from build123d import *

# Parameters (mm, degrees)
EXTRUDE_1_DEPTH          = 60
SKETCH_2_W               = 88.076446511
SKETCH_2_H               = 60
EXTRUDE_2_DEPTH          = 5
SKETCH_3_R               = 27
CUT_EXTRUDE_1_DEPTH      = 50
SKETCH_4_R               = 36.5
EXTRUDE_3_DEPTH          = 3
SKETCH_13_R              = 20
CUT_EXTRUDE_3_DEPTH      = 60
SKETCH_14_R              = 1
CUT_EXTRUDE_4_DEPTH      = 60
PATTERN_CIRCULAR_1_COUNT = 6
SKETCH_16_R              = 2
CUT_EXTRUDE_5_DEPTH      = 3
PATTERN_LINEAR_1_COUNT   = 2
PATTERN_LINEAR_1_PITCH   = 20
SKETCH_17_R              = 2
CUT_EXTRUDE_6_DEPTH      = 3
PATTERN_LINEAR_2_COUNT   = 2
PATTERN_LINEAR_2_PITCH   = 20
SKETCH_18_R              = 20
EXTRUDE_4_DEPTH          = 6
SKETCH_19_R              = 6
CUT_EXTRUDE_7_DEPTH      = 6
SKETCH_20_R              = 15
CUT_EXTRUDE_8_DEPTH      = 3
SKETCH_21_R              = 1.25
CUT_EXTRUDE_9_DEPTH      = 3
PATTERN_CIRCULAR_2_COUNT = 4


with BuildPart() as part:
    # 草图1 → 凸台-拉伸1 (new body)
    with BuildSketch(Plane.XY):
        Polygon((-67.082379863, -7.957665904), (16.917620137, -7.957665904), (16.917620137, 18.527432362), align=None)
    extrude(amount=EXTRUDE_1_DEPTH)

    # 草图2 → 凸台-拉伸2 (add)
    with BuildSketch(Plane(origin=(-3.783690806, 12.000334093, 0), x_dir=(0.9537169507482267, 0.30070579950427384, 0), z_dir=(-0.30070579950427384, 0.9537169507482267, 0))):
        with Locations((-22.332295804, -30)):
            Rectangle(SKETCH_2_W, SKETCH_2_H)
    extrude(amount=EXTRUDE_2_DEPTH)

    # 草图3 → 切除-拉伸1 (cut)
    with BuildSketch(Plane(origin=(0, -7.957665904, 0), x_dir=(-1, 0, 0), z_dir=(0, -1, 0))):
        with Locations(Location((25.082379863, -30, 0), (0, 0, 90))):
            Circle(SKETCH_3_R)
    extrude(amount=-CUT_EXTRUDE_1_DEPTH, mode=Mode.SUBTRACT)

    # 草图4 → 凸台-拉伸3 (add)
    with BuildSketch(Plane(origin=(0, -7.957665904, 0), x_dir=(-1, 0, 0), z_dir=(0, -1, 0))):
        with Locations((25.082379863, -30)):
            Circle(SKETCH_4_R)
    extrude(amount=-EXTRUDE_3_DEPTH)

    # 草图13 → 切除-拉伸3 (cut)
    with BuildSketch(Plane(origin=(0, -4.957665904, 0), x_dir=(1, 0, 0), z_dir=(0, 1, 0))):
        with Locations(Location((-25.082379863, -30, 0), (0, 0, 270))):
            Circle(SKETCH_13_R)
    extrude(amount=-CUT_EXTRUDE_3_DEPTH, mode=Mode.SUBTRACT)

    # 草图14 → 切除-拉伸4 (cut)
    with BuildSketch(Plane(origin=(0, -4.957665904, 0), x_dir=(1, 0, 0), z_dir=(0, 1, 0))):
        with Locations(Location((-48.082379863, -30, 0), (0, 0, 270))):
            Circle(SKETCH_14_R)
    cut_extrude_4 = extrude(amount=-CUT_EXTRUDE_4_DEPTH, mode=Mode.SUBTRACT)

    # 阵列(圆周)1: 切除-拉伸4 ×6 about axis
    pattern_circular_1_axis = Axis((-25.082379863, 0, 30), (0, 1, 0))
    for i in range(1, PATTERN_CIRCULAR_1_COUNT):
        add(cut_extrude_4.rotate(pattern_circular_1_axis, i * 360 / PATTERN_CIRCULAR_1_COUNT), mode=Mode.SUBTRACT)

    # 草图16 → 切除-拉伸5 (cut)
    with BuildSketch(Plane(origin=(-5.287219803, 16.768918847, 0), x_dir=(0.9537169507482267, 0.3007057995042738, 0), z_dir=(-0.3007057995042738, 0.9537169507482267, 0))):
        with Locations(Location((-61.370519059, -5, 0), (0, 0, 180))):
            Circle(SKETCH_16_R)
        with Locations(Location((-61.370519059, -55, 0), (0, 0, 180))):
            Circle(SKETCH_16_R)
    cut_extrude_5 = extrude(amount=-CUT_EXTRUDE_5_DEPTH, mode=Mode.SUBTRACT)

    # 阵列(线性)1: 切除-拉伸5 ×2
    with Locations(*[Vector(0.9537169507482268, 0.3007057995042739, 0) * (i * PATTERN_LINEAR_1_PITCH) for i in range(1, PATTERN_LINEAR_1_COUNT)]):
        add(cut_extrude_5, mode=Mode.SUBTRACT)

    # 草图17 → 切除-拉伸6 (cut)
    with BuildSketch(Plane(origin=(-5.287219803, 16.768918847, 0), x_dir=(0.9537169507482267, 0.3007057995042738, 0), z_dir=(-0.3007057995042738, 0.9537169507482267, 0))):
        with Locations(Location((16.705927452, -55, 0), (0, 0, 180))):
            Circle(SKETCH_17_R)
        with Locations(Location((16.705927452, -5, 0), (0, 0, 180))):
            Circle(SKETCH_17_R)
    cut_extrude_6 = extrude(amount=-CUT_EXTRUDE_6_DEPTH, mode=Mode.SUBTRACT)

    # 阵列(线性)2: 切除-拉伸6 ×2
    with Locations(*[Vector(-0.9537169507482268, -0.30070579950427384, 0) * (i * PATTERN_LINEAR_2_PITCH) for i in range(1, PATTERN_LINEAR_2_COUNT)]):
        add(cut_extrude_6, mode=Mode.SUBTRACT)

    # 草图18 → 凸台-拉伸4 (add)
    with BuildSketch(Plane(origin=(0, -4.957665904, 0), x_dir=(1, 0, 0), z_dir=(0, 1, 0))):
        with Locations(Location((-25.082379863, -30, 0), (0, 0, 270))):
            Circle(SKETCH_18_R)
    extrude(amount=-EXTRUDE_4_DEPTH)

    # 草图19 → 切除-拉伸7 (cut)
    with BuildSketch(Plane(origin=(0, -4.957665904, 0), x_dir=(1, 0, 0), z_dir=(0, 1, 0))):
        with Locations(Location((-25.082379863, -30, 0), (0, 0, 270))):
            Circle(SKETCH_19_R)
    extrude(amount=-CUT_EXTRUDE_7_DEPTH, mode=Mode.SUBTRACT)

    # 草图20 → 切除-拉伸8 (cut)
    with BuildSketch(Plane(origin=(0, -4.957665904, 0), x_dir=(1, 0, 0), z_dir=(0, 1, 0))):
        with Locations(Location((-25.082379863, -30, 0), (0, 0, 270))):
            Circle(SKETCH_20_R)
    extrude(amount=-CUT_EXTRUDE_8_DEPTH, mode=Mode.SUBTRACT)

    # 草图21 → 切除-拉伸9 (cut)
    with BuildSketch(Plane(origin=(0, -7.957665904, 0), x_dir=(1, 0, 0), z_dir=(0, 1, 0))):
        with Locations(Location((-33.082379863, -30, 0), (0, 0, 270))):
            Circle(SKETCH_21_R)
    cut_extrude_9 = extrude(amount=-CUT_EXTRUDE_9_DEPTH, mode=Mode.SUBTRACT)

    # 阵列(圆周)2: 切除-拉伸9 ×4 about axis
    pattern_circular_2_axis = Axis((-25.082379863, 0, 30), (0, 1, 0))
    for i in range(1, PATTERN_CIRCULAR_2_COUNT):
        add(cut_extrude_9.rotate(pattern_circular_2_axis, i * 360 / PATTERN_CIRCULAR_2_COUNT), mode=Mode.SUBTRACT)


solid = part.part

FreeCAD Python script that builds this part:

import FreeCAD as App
import Part
import Sketcher
from FreeCAD import Vector
Q = App.Units.Quantity

doc = App.newDocument("Part")
params = doc.addObject("Spreadsheet::Sheet", "Params")
for row, (alias, value) in enumerate([
    ("sketch1_width", "84 mm"),
    ("pad1_length", "60 mm"),
    ("sketch2_height", "60 mm"),
    ("pad2_length", "5 mm"),
    ("sketch3_diameter", "54 mm"),
    ("pocket1_length", "50 mm"),
    ("sketch4_diameter", "73 mm"),
    ("pad3_length", "3 mm"),
    ("sketch5_diameter", "40 mm"),
    ("pocket2_length", "60 mm"),
    ("sketch6_diameter", "2 mm"),
    ("pocket3_length", "60 mm"),
    ("sketch7_diameter", "4 mm"),
    ("pocket4_length", "3 mm"),
    ("linearpattern_pitch", "20 mm"),
    ("sketch8_diameter", "4 mm"),
    ("pocket5_length", "3 mm"),
    ("linearpattern2_pitch", "20 mm"),
    ("sketch9_diameter", "40 mm"),
    ("pad4_length", "6 mm"),
    ("sketch10_diameter", "12 mm"),
    ("pocket6_length", "6 mm"),
    ("sketch11_diameter", "30 mm"),
    ("pocket7_length", "3 mm"),
    ("sketch12_diameter", "2.5 mm"),
    ("pocket8_length", "3 mm"),
], start=1):
    params.set(f"A{row}", alias)
    params.set(f"B{row}", "=" + value)
    params.setAlias(f"B{row}", alias)

body = doc.addObject("PartDesign::Body", "Body")

sketch1 = body.newObject("Sketcher::SketchObject", "Sketch")
sketch1.AttachmentSupport = (doc.getObject("XY_Plane"), [""])
sketch1.MapMode = "FlatFace"
sketch1.addGeometry(Part.LineSegment(Vector(-67, -8, 0), Vector(17, -8, 0)), False)
sketch1.addGeometry(Part.LineSegment(Vector(17, -8, 0), Vector(17, 19, 0)), False)
sketch1.addGeometry(Part.LineSegment(Vector(17, 19, 0), Vector(-67, -8, 0)), False)
sketch1.addConstraint(Sketcher.Constraint("Coincident", 0, 2, 1, 1))
sketch1.addConstraint(Sketcher.Constraint("Coincident", 1, 2, 2, 1))
sketch1.addConstraint(Sketcher.Constraint("Coincident", 2, 2, 0, 1))
sketch1.addConstraint(Sketcher.Constraint("Horizontal", 0))
sketch1.addConstraint(Sketcher.Constraint("Vertical", 1))
sketch1.addConstraint(Sketcher.Constraint("DistanceX", 0, 1, 0, 2, Q("84 mm")))
sketch1.addConstraint(Sketcher.Constraint("Angle", 2, Q("-162.5 deg")))
sketch1.addConstraint(Sketcher.Constraint("DistanceX", -1, 1, 0, 2, Q("16.91762 mm")))
sketch1.addConstraint(Sketcher.Constraint("DistanceY", 0, 2, -1, 1, Q("7.957666 mm")))
sketch1.setExpression("Constraints[5]", "Params.sketch1_width")
pad1 = body.newObject("PartDesign::Pad", "Pad")
pad1.Profile = sketch1
pad1.setExpression("Length", "Params.pad1_length")

sketch2 = body.newObject("Sketcher::SketchObject", "Sketch001")
sketch2.Placement = App.Placement(Vector(-3.783691, 12.000334, 0), App.Rotation(Vector(0.953716951, 0.3007058, 0), Vector(0, 0, -1.000000001), Vector(-0.3007058, 0.953716951, 0), "ZXY"))
sketch2.addGeometry(Part.LineSegment(Vector(-66, 0, 0), Vector(-66, -60, 0)), False)
sketch2.addGeometry(Part.LineSegment(Vector(-66, -60, 0), Vector(22, -60, 0)), False)
sketch2.addGeometry(Part.LineSegment(Vector(22, -60, 0), Vector(22, 0, 0)), False)
sketch2.addGeometry(Part.LineSegment(Vector(22, 0, 0), Vector(-66, 0, 0)), False)
sketch2.addConstraint(Sketcher.Constraint("Coincident", 0, 2, 1, 1))
sketch2.addConstraint(Sketcher.Constraint("Coincident", 1, 2, 2, 1))
sketch2.addConstraint(Sketcher.Constraint("Coincident", 2, 2, 3, 1))
sketch2.addConstraint(Sketcher.Constraint("Coincident", 3, 2, 0, 1))
sketch2.addConstraint(Sketcher.Constraint("Vertical", 0))
sketch2.addConstraint(Sketcher.Constraint("Horizontal", 1))
sketch2.addConstraint(Sketcher.Constraint("Vertical", 2))
sketch2.addConstraint(Sketcher.Constraint("Horizontal", 3))
sketch2.addConstraint(Sketcher.Constraint("PointOnObject", 2, 2, -1))
sketch2.addConstraint(Sketcher.Constraint("DistanceY", 0, 2, 0, 1, Q("60 mm")))
sketch2.addConstraint(Sketcher.Constraint("DistanceX", 1, 1, 1, 2, Q("88.076447 mm")))
sketch2.addConstraint(Sketcher.Constraint("DistanceX", 0, 2, -1, 1, Q("66.370519 mm")))
sketch2.setExpression("Constraints[9]", "Params.sketch2_height")
pad2 = body.newObject("PartDesign::Pad", "Pad001")
pad2.Profile = sketch2
pad2.setExpression("Length", "Params.pad2_length")

sketch3 = body.newObject("Sketcher::SketchObject", "Sketch002")
sketch3.AttachmentSupport = (doc.getObject("XZ_Plane"), [""])
sketch3.MapMode = "FlatFace"
sketch3.AttachmentOffset = App.Placement(Vector(0, 0, 7.957666), App.Rotation())
sketch3.addGeometry(Part.Circle(Vector(-25, 30, 0), Vector(0, 0, 1), 27), False)
sketch3.addConstraint(Sketcher.Constraint("Diameter", 0, Q("54 mm")))
sketch3.addConstraint(Sketcher.Constraint("DistanceY", -1, 1, 0, 3, Q("30 mm")))
sketch3.addConstraint(Sketcher.Constraint("DistanceX", 0, 3, -1, 1, Q("25.08238 mm")))
sketch3.setExpression("Constraints[0]", "Params.sketch3_diameter")
pocket1 = body.newObject("PartDesign::Pocket", "Pocket")
pocket1.Profile = sketch3
pocket1.setExpression("Length", "Params.pocket1_length")

sketch4 = body.newObject("Sketcher::SketchObject", "Sketch003")
sketch4.AttachmentSupport = (doc.getObject("XZ_Plane"), [""])
sketch4.MapMode = "FlatFace"
sketch4.AttachmentOffset = App.Placement(Vector(0, 0, 7.957666), App.Rotation())
sketch4.addGeometry(Part.Circle(Vector(-25, 30, 0), Vector(0, 0, 1), 36), False)
sketch4.addConstraint(Sketcher.Constraint("Diameter", 0, Q("73 mm")))
sketch4.addConstraint(Sketcher.Constraint("DistanceY", -1, 1, 0, 3, Q("30 mm")))
sketch4.addConstraint(Sketcher.Constraint("DistanceX", 0, 3, -1, 1, Q("25.08238 mm")))
sketch4.setExpression("Constraints[0]", "Params.sketch4_diameter")
pad3 = body.newObject("PartDesign::Pad", "Pad002")
pad3.Profile = sketch4
pad3.setExpression("Length", "Params.pad3_length")
pad3.Reversed = True

sketch5 = body.newObject("Sketcher::SketchObject", "Sketch004")
sketch5.AttachmentSupport = (doc.getObject("XZ_Plane"), [""])
sketch5.MapMode = "FlatFace"
sketch5.AttachmentOffset = App.Placement(Vector(0, 0, 4.957666), App.Rotation())
sketch5.addGeometry(Part.Circle(Vector(-25, 30, 0), Vector(0, 0, 1), 20), False)
sketch5.addConstraint(Sketcher.Constraint("Diameter", 0, Q("40 mm")))
sketch5.addConstraint(Sketcher.Constraint("DistanceY", -1, 1, 0, 3, Q("30 mm")))
sketch5.addConstraint(Sketcher.Constraint("DistanceX", 0, 3, -1, 1, Q("25.08238 mm")))
sketch5.setExpression("Constraints[0]", "Params.sketch5_diameter")
pocket2 = body.newObject("PartDesign::Pocket", "Pocket001")
pocket2.Profile = sketch5
pocket2.setExpression("Length", "Params.pocket2_length")
pocket2.Reversed = True

sketch6 = body.newObject("Sketcher::SketchObject", "Sketch005")
sketch6.AttachmentSupport = (doc.getObject("XZ_Plane"), [""])
sketch6.MapMode = "FlatFace"
sketch6.AttachmentOffset = App.Placement(Vector(0, 0, 4.957666), App.Rotation())
sketch6.addGeometry(Part.Circle(Vector(-48.1, 30, 0), Vector(0, 0, 1), 1), False)
sketch6.addConstraint(Sketcher.Constraint("Diameter", 0, Q("2 mm")))
sketch6.addConstraint(Sketcher.Constraint("DistanceY", -1, 1, 0, 3, Q("30 mm")))
sketch6.addConstraint(Sketcher.Constraint("DistanceX", 0, 3, -1, 1, Q("48.08238 mm")))
sketch6.setExpression("Constraints[0]", "Params.sketch6_diameter")
pocket3 = body.newObject("PartDesign::Pocket", "Pocket002")
pocket3.Profile = sketch6
pocket3.setExpression("Length", "Params.pocket3_length")
pocket3.Reversed = True
doc.recompute()

datumline = body.newObject("PartDesign::Line", "DatumLine")
datumline.Placement = App.Placement(Vector(-25.08238, 0, 30), App.Rotation(Vector(0, 0, 1), Vector(0, 1, 0)))
polarpattern = body.newObject("PartDesign::PolarPattern", "PolarPattern")
polarpattern.Originals = [pocket3]
polarpattern.Axis = (datumline, [""])
polarpattern.Angle = 360
polarpattern.Occurrences = 6
body.Tip = polarpattern

sketch7 = body.newObject("Sketcher::SketchObject", "Sketch006")
sketch7.Placement = App.Placement(Vector(-5.28722, 16.768919, 0), App.Rotation(Vector(0.953716951, 0.3007058, 0), Vector(0, 0, -1.000000001), Vector(-0.3007058, 0.953716951, 0), "ZXY"))
sketch7.addGeometry(Part.Circle(Vector(-61.4, -5, 0), Vector(0, 0, 1), 2), False)
sketch7.addGeometry(Part.Circle(Vector(-61.4, -55, 0), Vector(0, 0, 1), 2), False)
sketch7.addConstraint(Sketcher.Constraint("Equal", 0, 1))
sketch7.addConstraint(Sketcher.Constraint("Vertical", 0, 3, 1, 3))
sketch7.addConstraint(Sketcher.Constraint("Diameter", 0, Q("4 mm")))
sketch7.addConstraint(Sketcher.Constraint("DistanceY", 0, 3, -1, 1, Q("5 mm")))
sketch7.addConstraint(Sketcher.Constraint("DistanceY", 1, 3, -1, 1, Q("55 mm")))
sketch7.addConstraint(Sketcher.Constraint("DistanceX", 0, 3, -1, 1, Q("61.370519 mm")))
sketch7.setExpression("Constraints[2]", "Params.sketch7_diameter")
pocket4 = body.newObject("PartDesign::Pocket", "Pocket003")
pocket4.Profile = sketch7
pocket4.setExpression("Length", "Params.pocket4_length")
doc.recompute()

datumline2 = body.newObject("PartDesign::Line", "DatumLine001")
datumline2.Placement = App.Placement(Vector(0, 0, 0), App.Rotation(Vector(0, 0, 1), Vector(0.953716951, 0.300705799, 0)))
linearpattern = body.newObject("PartDesign::LinearPattern", "LinearPattern")
linearpattern.Originals = [pocket4]
linearpattern.Direction = (datumline2, [""])
linearpattern.Mode = "offset"
linearpattern.setExpression("Offset", "Params.linearpattern_pitch")
linearpattern.Occurrences = 2
body.Tip = linearpattern

sketch8 = body.newObject("Sketcher::SketchObject", "Sketch007")
sketch8.Placement = App.Placement(Vector(-5.28722, 16.768919, 0), App.Rotation(Vector(0.953716951, 0.3007058, 0), Vector(0, 0, -1.000000001), Vector(-0.3007058, 0.953716951, 0), "ZXY"))
sketch8.addGeometry(Part.Circle(Vector(16.7, -55, 0), Vector(0, 0, 1), 2), False)
sketch8.addGeometry(Part.Circle(Vector(16.7, -5, 0), Vector(0, 0, 1), 2), False)
sketch8.addConstraint(Sketcher.Constraint("Equal", 0, 1))
sketch8.addConstraint(Sketcher.Constraint("Vertical", 0, 3, 1, 3))
sketch8.addConstraint(Sketcher.Constraint("Diameter", 0, Q("4 mm")))
sketch8.addConstraint(Sketcher.Constraint("DistanceY", 0, 3, -1, 1, Q("55 mm")))
sketch8.addConstraint(Sketcher.Constraint("DistanceY", 1, 3, -1, 1, Q("5 mm")))
sketch8.addConstraint(Sketcher.Constraint("DistanceX", -1, 1, 0, 3, Q("16.705927 mm")))
sketch8.setExpression("Constraints[2]", "Params.sketch8_diameter")
pocket5 = body.newObject("PartDesign::Pocket", "Pocket004")
pocket5.Profile = sketch8
pocket5.setExpression("Length", "Params.pocket5_length")
doc.recompute()

datumline3 = body.newObject("PartDesign::Line", "DatumLine002")
datumline3.Placement = App.Placement(Vector(0, 0, 0), App.Rotation(Vector(0, 0, 1), Vector(-0.953716951, -0.300705799, 0)))
linearpattern2 = body.newObject("PartDesign::LinearPattern", "LinearPattern001")
linearpattern2.Originals = [pocket5]
linearpattern2.Direction = (datumline3, [""])
linearpattern2.Mode = "offset"
linearpattern2.setExpression("Offset", "Params.linearpattern2_pitch")
linearpattern2.Occurrences = 2
body.Tip = linearpattern2

sketch9 = body.newObject("Sketcher::SketchObject", "Sketch008")
sketch9.AttachmentSupport = (doc.getObject("XZ_Plane"), [""])
sketch9.MapMode = "FlatFace"
sketch9.AttachmentOffset = App.Placement(Vector(0, 0, 4.957666), App.Rotation())
sketch9.addGeometry(Part.Circle(Vector(-25, 30, 0), Vector(0, 0, 1), 20), False)
sketch9.addConstraint(Sketcher.Constraint("Diameter", 0, Q("40 mm")))
sketch9.addConstraint(Sketcher.Constraint("DistanceY", -1, 1, 0, 3, Q("30 mm")))
sketch9.addConstraint(Sketcher.Constraint("DistanceX", 0, 3, -1, 1, Q("25.08238 mm")))
sketch9.setExpression("Constraints[0]", "Params.sketch9_diameter")
pad4 = body.newObject("PartDesign::Pad", "Pad003")
pad4.Profile = sketch9
pad4.setExpression("Length", "Params.pad4_length")

sketch10 = body.newObject("Sketcher::SketchObject", "Sketch009")
sketch10.AttachmentSupport = (doc.getObject("XZ_Plane"), [""])
sketch10.MapMode = "FlatFace"
sketch10.AttachmentOffset = App.Placement(Vector(0, 0, 4.957666), App.Rotation())
sketch10.addGeometry(Part.Circle(Vector(-25, 30, 0), Vector(0, 0, 1), 6), False)
sketch10.addConstraint(Sketcher.Constraint("Diameter", 0, Q("12 mm")))
sketch10.addConstraint(Sketcher.Constraint("DistanceY", -1, 1, 0, 3, Q("30 mm")))
sketch10.addConstraint(Sketcher.Constraint("DistanceX", 0, 3, -1, 1, Q("25.08238 mm")))
sketch10.setExpression("Constraints[0]", "Params.sketch10_diameter")
pocket6 = body.newObject("PartDesign::Pocket", "Pocket005")
pocket6.Profile = sketch10
pocket6.setExpression("Length", "Params.pocket6_length")
pocket6.Reversed = True

sketch11 = body.newObject("Sketcher::SketchObject", "Sketch010")
sketch11.AttachmentSupport = (doc.getObject("XZ_Plane"), [""])
sketch11.MapMode = "FlatFace"
sketch11.AttachmentOffset = App.Placement(Vector(0, 0, 4.957666), App.Rotation())
sketch11.addGeometry(Part.Circle(Vector(-25, 30, 0), Vector(0, 0, 1), 15), False)
sketch11.addConstraint(Sketcher.Constraint("Diameter", 0, Q("30 mm")))
sketch11.addConstraint(Sketcher.Constraint("DistanceY", -1, 1, 0, 3, Q("30 mm")))
sketch11.addConstraint(Sketcher.Constraint("DistanceX", 0, 3, -1, 1, Q("25.08238 mm")))
sketch11.setExpression("Constraints[0]", "Params.sketch11_diameter")
pocket7 = body.newObject("PartDesign::Pocket", "Pocket006")
pocket7.Profile = sketch11
pocket7.setExpression("Length", "Params.pocket7_length")
pocket7.Reversed = True

sketch12 = body.newObject("Sketcher::SketchObject", "Sketch011")
sketch12.AttachmentSupport = (doc.getObject("XZ_Plane"), [""])
sketch12.MapMode = "FlatFace"
sketch12.AttachmentOffset = App.Placement(Vector(0, 0, 7.957666), App.Rotation())
sketch12.addGeometry(Part.Circle(Vector(-33.1, 30, 0), Vector(0, 0, 1), 1.2), False)
sketch12.addConstraint(Sketcher.Constraint("Diameter", 0, Q("2.5 mm")))
sketch12.addConstraint(Sketcher.Constraint("DistanceY", -1, 1, 0, 3, Q("30 mm")))
sketch12.addConstraint(Sketcher.Constraint("DistanceX", 0, 3, -1, 1, Q("33.08238 mm")))
sketch12.setExpression("Constraints[0]", "Params.sketch12_diameter")
pocket8 = body.newObject("PartDesign::Pocket", "Pocket007")
pocket8.Profile = sketch12
pocket8.setExpression("Length", "Params.pocket8_length")
pocket8.Reversed = True
doc.recompute()

datumline4 = body.newObject("PartDesign::Line", "DatumLine003")
datumline4.Placement = App.Placement(Vector(-25.08238, 0, 30), App.Rotation(Vector(0, 0, 1), Vector(0, 1, 0)))
polarpattern2 = body.newObject("PartDesign::PolarPattern", "PolarPattern001")
polarpattern2.Originals = [pocket8]
polarpattern2.Axis = (datumline4, [""])
polarpattern2.Angle = 360
polarpattern2.Occurrences = 4
body.Tip = polarpattern2

doc.recompute()
